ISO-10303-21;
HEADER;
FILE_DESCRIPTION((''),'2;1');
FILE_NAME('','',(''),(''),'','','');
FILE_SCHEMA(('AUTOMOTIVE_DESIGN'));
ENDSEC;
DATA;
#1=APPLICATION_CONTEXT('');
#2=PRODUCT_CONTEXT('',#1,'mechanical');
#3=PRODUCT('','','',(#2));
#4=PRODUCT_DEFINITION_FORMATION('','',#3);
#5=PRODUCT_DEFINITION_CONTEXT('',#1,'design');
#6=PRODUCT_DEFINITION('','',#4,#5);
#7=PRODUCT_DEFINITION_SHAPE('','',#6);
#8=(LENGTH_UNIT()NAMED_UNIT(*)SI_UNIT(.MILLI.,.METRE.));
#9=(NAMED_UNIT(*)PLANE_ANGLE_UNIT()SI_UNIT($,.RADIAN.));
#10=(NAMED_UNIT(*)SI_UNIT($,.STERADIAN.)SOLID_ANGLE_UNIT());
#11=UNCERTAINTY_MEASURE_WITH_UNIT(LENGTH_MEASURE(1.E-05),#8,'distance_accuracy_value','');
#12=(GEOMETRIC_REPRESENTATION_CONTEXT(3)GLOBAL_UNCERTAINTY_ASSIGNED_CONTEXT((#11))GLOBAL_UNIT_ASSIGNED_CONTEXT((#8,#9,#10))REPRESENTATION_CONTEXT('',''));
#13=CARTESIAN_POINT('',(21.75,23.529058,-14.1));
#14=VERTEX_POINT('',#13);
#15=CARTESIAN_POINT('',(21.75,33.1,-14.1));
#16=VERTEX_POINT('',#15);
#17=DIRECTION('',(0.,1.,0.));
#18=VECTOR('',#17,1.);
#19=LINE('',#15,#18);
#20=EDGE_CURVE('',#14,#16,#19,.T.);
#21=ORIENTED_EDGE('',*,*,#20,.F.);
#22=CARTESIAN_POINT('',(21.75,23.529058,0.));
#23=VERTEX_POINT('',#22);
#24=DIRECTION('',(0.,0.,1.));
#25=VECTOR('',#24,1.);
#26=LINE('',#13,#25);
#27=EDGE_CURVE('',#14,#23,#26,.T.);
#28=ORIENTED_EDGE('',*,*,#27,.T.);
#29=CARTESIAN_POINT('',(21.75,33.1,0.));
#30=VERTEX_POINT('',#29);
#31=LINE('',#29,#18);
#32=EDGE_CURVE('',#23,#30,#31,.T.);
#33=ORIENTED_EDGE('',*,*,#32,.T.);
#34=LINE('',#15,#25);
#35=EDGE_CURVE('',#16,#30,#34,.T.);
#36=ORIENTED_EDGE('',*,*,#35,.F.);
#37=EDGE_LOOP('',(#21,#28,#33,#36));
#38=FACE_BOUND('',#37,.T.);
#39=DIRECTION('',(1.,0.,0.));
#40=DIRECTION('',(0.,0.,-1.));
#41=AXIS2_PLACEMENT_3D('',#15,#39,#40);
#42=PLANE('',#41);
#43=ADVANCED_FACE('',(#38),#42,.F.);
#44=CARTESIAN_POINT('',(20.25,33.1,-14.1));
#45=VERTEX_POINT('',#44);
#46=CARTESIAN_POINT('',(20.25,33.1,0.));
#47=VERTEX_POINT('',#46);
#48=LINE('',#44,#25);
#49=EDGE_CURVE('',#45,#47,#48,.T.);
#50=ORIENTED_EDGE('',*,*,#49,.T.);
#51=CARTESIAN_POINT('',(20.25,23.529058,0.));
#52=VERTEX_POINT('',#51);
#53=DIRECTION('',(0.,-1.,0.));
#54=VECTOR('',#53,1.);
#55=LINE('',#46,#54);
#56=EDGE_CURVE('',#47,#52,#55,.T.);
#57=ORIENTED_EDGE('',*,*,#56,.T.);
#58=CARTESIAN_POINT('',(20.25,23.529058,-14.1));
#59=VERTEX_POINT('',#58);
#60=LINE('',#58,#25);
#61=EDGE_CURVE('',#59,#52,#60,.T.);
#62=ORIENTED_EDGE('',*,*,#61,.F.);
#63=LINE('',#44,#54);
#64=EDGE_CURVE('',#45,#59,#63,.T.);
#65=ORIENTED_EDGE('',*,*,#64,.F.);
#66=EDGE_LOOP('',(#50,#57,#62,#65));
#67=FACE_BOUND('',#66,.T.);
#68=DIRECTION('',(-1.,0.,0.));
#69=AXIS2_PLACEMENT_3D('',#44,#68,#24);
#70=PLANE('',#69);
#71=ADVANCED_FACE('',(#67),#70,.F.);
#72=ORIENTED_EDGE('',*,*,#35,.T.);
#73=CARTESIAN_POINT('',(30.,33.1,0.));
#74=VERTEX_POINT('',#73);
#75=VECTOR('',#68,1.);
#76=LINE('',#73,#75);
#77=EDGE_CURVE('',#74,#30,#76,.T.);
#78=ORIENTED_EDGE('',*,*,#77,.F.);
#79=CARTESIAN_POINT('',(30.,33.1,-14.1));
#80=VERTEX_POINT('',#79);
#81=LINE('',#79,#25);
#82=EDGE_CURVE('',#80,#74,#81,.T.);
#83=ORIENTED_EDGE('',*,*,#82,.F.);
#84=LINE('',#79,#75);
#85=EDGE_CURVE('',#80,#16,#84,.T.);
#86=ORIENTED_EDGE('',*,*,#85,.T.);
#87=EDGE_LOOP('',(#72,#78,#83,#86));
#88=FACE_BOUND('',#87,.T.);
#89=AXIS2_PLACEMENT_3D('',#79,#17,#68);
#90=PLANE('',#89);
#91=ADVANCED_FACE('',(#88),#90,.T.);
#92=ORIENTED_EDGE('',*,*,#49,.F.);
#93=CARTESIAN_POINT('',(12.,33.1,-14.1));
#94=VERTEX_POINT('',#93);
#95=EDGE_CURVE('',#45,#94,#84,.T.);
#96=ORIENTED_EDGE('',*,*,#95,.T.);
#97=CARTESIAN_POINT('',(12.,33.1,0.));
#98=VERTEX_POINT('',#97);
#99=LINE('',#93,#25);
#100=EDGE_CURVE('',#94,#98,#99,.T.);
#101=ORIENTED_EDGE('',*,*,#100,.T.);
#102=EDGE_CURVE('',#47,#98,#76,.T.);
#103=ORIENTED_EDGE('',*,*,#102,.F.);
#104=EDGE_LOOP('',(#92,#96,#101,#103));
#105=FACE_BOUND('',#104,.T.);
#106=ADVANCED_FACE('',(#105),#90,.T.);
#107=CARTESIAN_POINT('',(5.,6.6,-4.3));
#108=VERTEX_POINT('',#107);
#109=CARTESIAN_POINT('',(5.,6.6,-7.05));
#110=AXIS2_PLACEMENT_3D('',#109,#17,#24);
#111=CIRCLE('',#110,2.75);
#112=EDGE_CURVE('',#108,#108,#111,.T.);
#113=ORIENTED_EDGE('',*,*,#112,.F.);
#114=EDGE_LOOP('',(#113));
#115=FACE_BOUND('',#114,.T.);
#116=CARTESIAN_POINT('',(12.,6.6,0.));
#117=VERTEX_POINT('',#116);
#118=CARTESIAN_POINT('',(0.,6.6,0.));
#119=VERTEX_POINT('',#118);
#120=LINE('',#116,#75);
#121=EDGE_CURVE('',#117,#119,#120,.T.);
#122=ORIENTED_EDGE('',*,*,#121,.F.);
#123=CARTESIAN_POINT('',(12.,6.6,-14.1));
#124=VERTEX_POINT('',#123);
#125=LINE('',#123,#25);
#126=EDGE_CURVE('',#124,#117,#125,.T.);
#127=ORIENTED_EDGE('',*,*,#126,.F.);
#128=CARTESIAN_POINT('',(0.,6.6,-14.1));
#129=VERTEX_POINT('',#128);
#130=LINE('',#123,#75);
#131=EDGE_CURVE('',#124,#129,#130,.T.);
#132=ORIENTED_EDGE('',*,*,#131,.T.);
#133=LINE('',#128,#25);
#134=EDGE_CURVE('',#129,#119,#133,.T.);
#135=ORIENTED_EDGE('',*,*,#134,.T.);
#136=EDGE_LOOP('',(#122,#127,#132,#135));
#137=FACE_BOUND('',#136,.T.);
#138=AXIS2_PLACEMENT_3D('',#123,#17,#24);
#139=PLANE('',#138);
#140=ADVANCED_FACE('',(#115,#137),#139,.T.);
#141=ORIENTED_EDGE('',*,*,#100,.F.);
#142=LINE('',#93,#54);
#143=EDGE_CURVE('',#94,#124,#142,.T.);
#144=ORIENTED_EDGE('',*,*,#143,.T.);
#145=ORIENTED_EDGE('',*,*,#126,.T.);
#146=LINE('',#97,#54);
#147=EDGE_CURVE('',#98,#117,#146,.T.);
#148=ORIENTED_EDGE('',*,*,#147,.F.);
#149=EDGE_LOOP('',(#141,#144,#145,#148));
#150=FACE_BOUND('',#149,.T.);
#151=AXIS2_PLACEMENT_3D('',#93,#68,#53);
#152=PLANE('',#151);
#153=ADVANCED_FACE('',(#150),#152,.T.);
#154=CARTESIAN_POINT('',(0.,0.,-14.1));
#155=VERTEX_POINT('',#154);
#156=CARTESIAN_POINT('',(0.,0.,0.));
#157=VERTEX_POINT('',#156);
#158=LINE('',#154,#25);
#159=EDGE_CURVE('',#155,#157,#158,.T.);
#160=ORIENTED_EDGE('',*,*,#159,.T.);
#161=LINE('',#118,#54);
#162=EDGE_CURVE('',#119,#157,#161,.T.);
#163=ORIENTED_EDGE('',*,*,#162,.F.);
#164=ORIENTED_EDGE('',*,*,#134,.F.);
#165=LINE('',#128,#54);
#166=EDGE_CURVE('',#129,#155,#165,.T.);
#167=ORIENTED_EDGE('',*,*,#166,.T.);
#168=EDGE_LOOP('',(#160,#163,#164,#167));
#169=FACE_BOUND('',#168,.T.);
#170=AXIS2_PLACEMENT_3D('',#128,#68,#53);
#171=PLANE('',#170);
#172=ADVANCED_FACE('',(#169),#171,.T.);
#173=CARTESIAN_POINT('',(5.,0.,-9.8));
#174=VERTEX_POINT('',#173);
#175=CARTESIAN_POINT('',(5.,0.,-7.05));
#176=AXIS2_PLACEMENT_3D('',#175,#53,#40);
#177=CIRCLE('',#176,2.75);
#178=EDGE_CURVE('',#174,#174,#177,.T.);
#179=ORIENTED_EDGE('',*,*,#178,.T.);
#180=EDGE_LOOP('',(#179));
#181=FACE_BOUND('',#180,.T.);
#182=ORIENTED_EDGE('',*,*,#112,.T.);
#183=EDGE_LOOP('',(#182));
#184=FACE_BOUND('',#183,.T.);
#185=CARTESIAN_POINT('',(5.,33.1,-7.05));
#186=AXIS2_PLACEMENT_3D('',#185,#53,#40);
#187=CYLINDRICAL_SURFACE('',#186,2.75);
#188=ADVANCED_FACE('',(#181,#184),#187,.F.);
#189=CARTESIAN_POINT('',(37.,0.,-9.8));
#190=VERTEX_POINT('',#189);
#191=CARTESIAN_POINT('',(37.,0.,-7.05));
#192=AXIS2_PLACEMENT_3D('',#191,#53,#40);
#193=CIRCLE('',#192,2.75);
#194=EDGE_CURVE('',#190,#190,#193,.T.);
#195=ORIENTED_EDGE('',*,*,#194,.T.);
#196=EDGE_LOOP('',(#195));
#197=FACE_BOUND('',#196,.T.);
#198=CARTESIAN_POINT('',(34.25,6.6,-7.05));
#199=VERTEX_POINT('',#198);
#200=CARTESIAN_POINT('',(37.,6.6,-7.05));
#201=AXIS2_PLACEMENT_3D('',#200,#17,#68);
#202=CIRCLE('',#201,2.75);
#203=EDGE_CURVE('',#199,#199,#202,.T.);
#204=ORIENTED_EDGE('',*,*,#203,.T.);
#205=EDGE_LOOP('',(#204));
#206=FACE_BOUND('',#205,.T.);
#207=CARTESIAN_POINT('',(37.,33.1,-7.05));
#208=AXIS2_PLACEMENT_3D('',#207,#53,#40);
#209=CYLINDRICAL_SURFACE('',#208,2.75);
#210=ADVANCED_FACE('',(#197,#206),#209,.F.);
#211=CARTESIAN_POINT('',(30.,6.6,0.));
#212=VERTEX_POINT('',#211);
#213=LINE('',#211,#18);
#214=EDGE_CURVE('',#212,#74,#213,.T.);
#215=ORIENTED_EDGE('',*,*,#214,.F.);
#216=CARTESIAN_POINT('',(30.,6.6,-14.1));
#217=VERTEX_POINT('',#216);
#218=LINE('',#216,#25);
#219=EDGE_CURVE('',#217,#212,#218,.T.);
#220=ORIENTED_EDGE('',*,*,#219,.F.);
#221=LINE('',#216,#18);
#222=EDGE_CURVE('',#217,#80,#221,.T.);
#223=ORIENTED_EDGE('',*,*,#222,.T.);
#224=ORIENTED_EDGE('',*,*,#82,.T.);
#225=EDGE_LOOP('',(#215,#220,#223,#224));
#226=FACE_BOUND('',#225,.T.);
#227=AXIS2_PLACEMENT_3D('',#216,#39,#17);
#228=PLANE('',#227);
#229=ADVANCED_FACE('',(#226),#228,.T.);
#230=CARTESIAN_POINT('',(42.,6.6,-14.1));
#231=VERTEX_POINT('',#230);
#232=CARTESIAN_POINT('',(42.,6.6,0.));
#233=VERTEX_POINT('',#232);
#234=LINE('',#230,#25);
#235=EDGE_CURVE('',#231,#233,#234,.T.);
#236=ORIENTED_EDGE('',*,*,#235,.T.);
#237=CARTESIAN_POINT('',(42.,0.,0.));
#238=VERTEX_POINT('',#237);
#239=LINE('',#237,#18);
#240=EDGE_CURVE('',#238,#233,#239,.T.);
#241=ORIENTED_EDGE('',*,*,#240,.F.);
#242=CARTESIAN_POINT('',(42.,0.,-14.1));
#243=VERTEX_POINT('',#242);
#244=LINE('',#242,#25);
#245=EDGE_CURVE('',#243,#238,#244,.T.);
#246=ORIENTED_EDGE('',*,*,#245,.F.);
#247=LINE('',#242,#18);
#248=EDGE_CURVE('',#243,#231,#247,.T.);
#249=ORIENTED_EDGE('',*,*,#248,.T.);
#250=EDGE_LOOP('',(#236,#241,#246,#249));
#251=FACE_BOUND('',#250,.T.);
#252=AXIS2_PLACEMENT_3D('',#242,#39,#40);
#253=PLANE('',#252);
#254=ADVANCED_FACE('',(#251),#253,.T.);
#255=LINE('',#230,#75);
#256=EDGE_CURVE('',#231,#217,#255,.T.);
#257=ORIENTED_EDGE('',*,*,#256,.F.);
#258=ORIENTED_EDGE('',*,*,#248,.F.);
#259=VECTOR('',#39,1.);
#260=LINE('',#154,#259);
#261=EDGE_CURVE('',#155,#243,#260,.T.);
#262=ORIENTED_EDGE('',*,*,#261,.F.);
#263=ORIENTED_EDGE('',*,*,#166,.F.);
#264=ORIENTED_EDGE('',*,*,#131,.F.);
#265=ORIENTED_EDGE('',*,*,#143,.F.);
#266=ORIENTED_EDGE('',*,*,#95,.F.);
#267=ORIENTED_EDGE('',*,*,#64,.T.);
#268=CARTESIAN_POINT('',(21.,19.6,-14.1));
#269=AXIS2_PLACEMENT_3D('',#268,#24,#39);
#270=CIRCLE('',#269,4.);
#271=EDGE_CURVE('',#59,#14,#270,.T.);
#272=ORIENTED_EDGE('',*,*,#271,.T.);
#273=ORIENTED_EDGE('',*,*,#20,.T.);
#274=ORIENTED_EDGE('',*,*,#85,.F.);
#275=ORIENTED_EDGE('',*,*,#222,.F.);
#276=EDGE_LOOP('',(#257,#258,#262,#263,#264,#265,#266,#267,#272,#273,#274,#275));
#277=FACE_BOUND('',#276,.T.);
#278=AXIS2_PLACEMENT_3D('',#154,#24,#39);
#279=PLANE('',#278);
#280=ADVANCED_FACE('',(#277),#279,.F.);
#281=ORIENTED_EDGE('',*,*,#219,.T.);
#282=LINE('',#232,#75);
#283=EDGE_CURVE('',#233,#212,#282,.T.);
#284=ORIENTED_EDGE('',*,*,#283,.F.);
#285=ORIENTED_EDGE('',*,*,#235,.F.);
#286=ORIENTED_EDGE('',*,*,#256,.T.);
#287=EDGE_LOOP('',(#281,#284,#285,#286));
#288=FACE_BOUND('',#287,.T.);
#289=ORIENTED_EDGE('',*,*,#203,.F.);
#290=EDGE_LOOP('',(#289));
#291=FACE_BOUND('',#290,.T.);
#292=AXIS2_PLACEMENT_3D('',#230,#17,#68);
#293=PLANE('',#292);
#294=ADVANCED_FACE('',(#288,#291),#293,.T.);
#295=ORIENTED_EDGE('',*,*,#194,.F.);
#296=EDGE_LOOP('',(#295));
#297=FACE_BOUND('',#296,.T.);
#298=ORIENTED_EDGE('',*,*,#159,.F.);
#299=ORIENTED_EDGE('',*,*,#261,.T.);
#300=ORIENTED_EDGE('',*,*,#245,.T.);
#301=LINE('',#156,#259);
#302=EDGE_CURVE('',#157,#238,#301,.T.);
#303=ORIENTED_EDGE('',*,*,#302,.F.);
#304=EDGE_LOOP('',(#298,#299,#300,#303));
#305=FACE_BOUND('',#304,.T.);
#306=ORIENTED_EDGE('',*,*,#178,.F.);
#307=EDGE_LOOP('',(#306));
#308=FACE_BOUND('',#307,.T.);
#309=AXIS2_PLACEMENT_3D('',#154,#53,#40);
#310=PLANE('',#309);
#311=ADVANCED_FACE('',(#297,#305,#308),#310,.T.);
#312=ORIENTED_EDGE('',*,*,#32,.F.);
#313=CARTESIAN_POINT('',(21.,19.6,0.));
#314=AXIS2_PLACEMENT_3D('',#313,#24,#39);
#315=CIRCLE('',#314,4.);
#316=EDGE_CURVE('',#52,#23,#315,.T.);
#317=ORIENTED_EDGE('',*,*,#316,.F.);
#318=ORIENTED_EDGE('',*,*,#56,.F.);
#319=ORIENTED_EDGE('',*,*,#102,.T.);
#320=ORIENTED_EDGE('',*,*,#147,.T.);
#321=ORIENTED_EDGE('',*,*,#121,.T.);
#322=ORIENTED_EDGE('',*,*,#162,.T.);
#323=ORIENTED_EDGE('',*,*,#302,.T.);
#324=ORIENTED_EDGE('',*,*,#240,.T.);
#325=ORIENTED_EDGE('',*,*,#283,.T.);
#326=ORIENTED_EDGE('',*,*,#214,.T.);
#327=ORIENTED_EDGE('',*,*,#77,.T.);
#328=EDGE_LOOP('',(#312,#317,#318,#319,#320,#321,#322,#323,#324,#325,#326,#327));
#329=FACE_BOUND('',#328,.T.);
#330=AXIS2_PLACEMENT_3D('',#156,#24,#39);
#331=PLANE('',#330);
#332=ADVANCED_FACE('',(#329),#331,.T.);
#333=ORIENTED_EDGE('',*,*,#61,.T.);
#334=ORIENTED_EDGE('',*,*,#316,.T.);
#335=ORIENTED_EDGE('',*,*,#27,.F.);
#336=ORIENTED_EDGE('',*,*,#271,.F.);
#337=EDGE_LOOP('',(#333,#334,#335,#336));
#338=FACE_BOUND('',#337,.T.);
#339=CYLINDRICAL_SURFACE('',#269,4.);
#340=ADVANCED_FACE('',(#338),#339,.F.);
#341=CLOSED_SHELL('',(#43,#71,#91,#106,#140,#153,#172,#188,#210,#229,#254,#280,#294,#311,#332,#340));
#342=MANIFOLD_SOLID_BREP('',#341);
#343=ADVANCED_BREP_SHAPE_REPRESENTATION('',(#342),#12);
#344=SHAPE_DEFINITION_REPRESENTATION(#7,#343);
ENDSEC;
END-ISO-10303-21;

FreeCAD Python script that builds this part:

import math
import FreeCAD as App
import Part
import Sketcher
from FreeCAD import Vector
Q = App.Units.Quantity

doc = App.newDocument("Part")
body = doc.addObject("PartDesign::Body", "Body")

sketch1 = body.newObject("Sketcher::SketchObject", "Sketch")
sketch1.AttachmentSupport = (doc.getObject("XY_Plane"), [""])
sketch1.MapMode = "FlatFace"
sketch1.addGeometry(Part.LineSegment(Vector(0, 0, 0), Vector(42, 0, 0)), False)
sketch1.addGeometry(Part.LineSegment(Vector(42, 0, 0), Vector(42, 6.6, 0)), False)
sketch1.addGeometry(Part.LineSegment(Vector(42, 6.6, 0), Vector(30, 6.6, 0)), False)
sketch1.addGeometry(Part.LineSegment(Vector(30, 6.6, 0), Vector(30, 33.1, 0)), False)
sketch1.addGeometry(Part.LineSegment(Vector(30, 33.1, 0), Vector(12, 33.1, 0)), False)
sketch1.addGeometry(Part.LineSegment(Vector(12, 33.1, 0), Vector(12, 6.6, 0)), False)
sketch1.addGeometry(Part.LineSegment(Vector(12, 6.6, 0), Vector(0, 6.6, 0)), False)
sketch1.addGeometry(Part.LineSegment(Vector(0, 6.6, 0), Vector(0, 0, 0)), False)
sketch1.addConstraint(Sketcher.Constraint("Coincident", 0, 2, 1, 1))
sketch1.addConstraint(Sketcher.Constraint("Coincident", 1, 2, 2, 1))
sketch1.addConstraint(Sketcher.Constraint("Coincident", 2, 2, 3, 1))
sketch1.addConstraint(Sketcher.Constraint("Coincident", 3, 2, 4, 1))
sketch1.addConstraint(Sketcher.Constraint("Coincident", 4, 2, 5, 1))
sketch1.addConstraint(Sketcher.Constraint("Coincident", 5, 2, 6, 1))
sketch1.addConstraint(Sketcher.Constraint("Coincident", 6, 2, 7, 1))
sketch1.addConstraint(Sketcher.Constraint("Coincident", 7, 2, 0, 1))
sketch1.addConstraint(Sketcher.Constraint("Horizontal", 0))
sketch1.addConstraint(Sketcher.Constraint("Vertical", 1))
sketch1.addConstraint(Sketcher.Constraint("Horizontal", 2))
sketch1.addConstraint(Sketcher.Constraint("Vertical", 3))
sketch1.addConstraint(Sketcher.Constraint("Horizontal", 4))
sketch1.addConstraint(Sketcher.Constraint("Vertical", 5))
sketch1.addConstraint(Sketcher.Constraint("Horizontal", 6))
sketch1.addConstraint(Sketcher.Constraint("Vertical", 7))
sketch1.addConstraint(Sketcher.Constraint("Coincident", 7, 2, -1, 1))
sketch1.addConstraint(Sketcher.Constraint("Horizontal", 2, 2, 5, 2))
sketch1.addConstraint(Sketcher.Constraint("Equal", 2, 6))
sketch1.addConstraint(Sketcher.Constraint("DistanceX", 0, 1, 0, 2, Q("42 mm")))
sketch1.addConstraint(Sketcher.Constraint("DistanceX", 2, 2, 2, 1, Q("12 mm")))
sketch1.addConstraint(Sketcher.Constraint("DistanceY", 1, 1, 1, 2, Q("6.6 mm")))
sketch1.addConstraint(Sketcher.Constraint("DistanceY", 3, 1, 3, 2, Q("26.5 mm")))
pad1 = body.newObject("PartDesign::Pad", "Pad")
pad1.Profile = sketch1
pad1.Length = 14.1
pad1.Reversed = True

sketch2 = body.newObject("Sketcher::SketchObject", "Sketch001")
sketch2.AttachmentSupport = (doc.getObject("XY_Plane"), [""])
sketch2.MapMode = "FlatFace"
sketch2.addGeometry(Part.LineSegment(Vector(21.75, 33.1, 0), Vector(20.25, 33.1, 0)), False)
sketch2.addGeometry(Part.LineSegment(Vector(20.25, 33.1, 0), Vector(20.25, 23.529058, 0)), False)
sketch2.addGeometry(Part.ArcOfCircle(Part.Circle(Vector(21, 19.6, 0), Vector(0, 0, 1), 4), math.radians(100.806923), math.radians(439.193077)), False)
sketch2.addGeometry(Part.LineSegment(Vector(21.75, 23.529058, 0), Vector(21.75, 33.1, 0)), False)
sketch2.addConstraint(Sketcher.Constraint("Coincident", 0, 2, 1, 1))
sketch2.addConstraint(Sketcher.Constraint("Coincident", 1, 2, 2, 1))
sketch2.addConstraint(Sketcher.Constraint("Coincident", 2, 2, 3, 1))
sketch2.addConstraint(Sketcher.Constraint("Coincident", 3, 2, 0, 1))
sketch2.addConstraint(Sketcher.Constraint("Horizontal", 0))
sketch2.addConstraint(Sketcher.Constraint("Vertical", 1))
sketch2.addConstraint(Sketcher.Constraint("Vertical", 3))
sketch2.addConstraint(Sketcher.Constraint("Horizontal", 1, 2, 2, 2))
sketch2.addConstraint(Sketcher.Constraint("Radius", 2, Q("4 mm")))
sketch2.addConstraint(Sketcher.Constraint("DistanceX", 0, 2, 0, 1, Q("1.5 mm")))
sketch2.addConstraint(Sketcher.Constraint("DistanceX", -1, 1, 2, 3, Q("21 mm")))
sketch2.addConstraint(Sketcher.Constraint("DistanceY", -1, 1, 2, 3, Q("19.6 mm")))
sketch2.addConstraint(Sketcher.Constraint("DistanceY", -1, 1, 0, 2, Q("33.1 mm")))
pocket1 = body.newObject("PartDesign::Pocket", "Pocket")
pocket1.Profile = sketch2
pocket1.Length = 14.1

sketch3 = body.newObject("Sketcher::SketchObject", "Sketch002")
sketch3.AttachmentSupport = (doc.getObject("XZ_Plane"), [""])
sketch3.MapMode = "FlatFace"
sketch3.addGeometry(Part.Circle(Vector(5, -7.05, 0), Vector(0, 0, 1), 2.75), False)
sketch3.addGeometry(Part.Circle(Vector(37, -7.05, 0), Vector(0, 0, 1), 2.75), False)
sketch3.addConstraint(Sketcher.Constraint("Equal", 0, 1))
sketch3.addConstraint(Sketcher.Constraint("Horizontal", 0, 3, 1, 3))
sketch3.addConstraint(Sketcher.Constraint("Diameter", 0, Q("5.5 mm")))
sketch3.addConstraint(Sketcher.Constraint("DistanceX", -1, 1, 0, 3, Q("5 mm")))
sketch3.addConstraint(Sketcher.Constraint("DistanceX", -1, 1, 1, 3, Q("37 mm")))
sketch3.addConstraint(Sketcher.Constraint("DistanceY", 0, 3, -1, 1, Q("7.05 mm")))
pocket2 = body.newObject("PartDesign::Pocket", "Pocket001")
pocket2.Profile = sketch3
pocket2.Type = "ThroughAll"

doc.recompute()
